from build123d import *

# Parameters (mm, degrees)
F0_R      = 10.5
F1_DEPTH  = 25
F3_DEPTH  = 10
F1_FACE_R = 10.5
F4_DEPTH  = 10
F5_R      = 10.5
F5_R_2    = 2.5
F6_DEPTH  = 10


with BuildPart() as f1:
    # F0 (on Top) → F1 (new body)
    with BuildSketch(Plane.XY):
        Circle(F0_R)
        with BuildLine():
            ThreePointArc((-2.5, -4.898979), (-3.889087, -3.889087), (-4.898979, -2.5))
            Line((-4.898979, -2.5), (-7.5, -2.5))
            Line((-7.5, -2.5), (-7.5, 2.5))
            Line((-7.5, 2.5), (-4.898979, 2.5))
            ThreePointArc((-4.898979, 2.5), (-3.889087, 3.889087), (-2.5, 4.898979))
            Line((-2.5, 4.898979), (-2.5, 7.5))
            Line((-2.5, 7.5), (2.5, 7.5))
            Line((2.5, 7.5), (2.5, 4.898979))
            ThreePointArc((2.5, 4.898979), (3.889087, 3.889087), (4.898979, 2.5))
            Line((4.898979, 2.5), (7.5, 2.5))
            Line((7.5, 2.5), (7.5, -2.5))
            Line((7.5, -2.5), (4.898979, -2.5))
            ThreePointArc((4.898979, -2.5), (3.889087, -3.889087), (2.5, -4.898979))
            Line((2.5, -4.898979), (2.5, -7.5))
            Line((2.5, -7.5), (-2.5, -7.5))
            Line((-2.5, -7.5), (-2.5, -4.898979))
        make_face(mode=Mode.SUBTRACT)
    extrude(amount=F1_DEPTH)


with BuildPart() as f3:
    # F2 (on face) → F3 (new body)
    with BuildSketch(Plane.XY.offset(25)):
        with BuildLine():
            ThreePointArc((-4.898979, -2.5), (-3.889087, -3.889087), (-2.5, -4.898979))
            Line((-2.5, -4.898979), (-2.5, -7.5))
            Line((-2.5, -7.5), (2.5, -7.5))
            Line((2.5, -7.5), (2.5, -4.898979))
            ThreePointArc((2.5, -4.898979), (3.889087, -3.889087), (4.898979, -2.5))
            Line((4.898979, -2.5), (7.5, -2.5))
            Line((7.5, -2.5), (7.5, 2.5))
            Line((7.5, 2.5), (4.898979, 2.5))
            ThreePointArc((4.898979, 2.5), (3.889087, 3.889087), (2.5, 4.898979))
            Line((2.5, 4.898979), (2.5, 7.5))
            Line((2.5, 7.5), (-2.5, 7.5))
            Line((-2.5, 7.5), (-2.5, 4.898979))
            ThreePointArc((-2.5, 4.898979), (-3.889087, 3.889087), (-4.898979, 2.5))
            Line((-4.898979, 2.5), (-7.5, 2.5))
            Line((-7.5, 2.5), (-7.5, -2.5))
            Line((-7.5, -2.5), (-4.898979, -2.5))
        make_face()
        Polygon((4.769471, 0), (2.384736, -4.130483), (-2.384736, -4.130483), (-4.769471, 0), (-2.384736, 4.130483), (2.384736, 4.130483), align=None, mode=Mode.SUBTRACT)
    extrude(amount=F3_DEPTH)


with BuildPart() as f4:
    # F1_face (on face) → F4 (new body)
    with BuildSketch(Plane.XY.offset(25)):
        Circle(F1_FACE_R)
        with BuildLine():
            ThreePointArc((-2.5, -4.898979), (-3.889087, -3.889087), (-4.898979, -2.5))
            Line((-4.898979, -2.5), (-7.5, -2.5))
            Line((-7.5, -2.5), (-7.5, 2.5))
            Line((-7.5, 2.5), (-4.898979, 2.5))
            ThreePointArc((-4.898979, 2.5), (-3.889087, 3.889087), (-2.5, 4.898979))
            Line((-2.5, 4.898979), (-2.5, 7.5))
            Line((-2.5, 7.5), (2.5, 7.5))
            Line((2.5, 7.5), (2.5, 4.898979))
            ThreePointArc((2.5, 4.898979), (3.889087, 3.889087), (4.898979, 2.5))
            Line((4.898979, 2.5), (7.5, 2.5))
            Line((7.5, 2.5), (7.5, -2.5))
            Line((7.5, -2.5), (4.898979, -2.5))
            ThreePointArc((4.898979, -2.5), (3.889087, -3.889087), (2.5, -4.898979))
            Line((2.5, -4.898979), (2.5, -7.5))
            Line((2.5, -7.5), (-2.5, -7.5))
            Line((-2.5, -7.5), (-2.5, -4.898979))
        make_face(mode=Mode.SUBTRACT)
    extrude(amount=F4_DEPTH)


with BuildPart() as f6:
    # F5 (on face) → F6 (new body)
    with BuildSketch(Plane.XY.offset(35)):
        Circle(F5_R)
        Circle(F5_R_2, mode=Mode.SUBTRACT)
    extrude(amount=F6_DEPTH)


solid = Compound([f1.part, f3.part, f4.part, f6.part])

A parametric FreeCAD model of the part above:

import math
import FreeCAD as App
import Part
import Sketcher
from FreeCAD import Vector
Q = App.Units.Quantity

doc = App.newDocument("Part")
body = doc.addObject("PartDesign::Body", "Body")

# Sketch on XY plane
sketch1 = doc.addObject("Sketcher::SketchObject", "Sketch")
body.addObject(sketch1)
sketch1.AttachmentSupport = (doc.XY_Plane, [""])
sketch1.MapMode = "FlatFace"
sketch1.addGeometry([
    Part.Circle(Vector(0, 0, 0), Vector(0, 0, 1), 10.5),  # 0
    Part.LineSegment(Vector(-2.5, -7.5, 0), Vector(-2.5, -4.9, 0)),  # 1
    Part.ArcOfCircle(Part.Circle(Vector(0, 0, 0), Vector(0, 0, 1), 5.5), math.radians(-153), math.radians(-117)),  # 2
    Part.LineSegment(Vector(-4.9, -2.5, 0), Vector(-7.5, -2.5, 0)),  # 3
    Part.LineSegment(Vector(-7.5, -2.5, 0), Vector(-7.5, 2.5, 0)),  # 4
    Part.LineSegment(Vector(-7.5, 2.5, 0), Vector(-4.9, 2.5, 0)),  # 5
    Part.ArcOfCircle(Part.Circle(Vector(0, 0, 0), Vector(0, 0, 1), 5.5), math.radians(117), math.radians(153)),  # 6
    Part.LineSegment(Vector(-2.5, 4.9, 0), Vector(-2.5, 7.5, 0)),  # 7
    Part.LineSegment(Vector(-2.5, 7.5, 0), Vector(2.5, 7.5, 0)),  # 8
    Part.LineSegment(Vector(2.5, 7.5, 0), Vector(2.5, 4.9, 0)),  # 9
    Part.ArcOfCircle(Part.Circle(Vector(0, 0, 0), Vector(0, 0, 1), 5.5), math.radians(27), math.radians(63)),  # 10
    Part.LineSegment(Vector(4.9, 2.5, 0), Vector(7.5, 2.5, 0)),  # 11
    Part.LineSegment(Vector(7.5, 2.5, 0), Vector(7.5, -2.5, 0)),  # 12
    Part.LineSegment(Vector(7.5, -2.5, 0), Vector(4.9, -2.5, 0)),  # 13
    Part.ArcOfCircle(Part.Circle(Vector(0, 0, 0), Vector(0, 0, 1), 5.5), math.radians(-63), math.radians(-27)),  # 14
    Part.LineSegment(Vector(2.5, -4.9, 0), Vector(2.5, -7.5, 0)),  # 15
    Part.LineSegment(Vector(2.5, -7.5, 0), Vector(-2.5, -7.5, 0)),  # 16
], False)
sketch1.addConstraint([
    Sketcher.Constraint("Coincident", 1, 2, 2, 2),
    Sketcher.Constraint("Coincident", 2, 1, 3, 1),
    Sketcher.Constraint("Coincident", 3, 2, 4, 1),
    Sketcher.Constraint("Coincident", 4, 2, 5, 1),
    Sketcher.Constraint("Coincident", 5, 2, 6, 2),
    Sketcher.Constraint("Coincident", 6, 1, 7, 1),
    Sketcher.Constraint("Coincident", 7, 2, 8, 1),
    Sketcher.Constraint("Coincident", 8, 2, 9, 1),
    Sketcher.Constraint("Coincident", 9, 2, 10, 2),
    Sketcher.Constraint("Coincident", 10, 1, 11, 1),
    Sketcher.Constraint("Coincident", 11, 2, 12, 1),
    Sketcher.Constraint("Coincident", 12, 2, 13, 1),
    Sketcher.Constraint("Coincident", 13, 2, 14, 2),
    Sketcher.Constraint("Coincident", 14, 1, 15, 1),
    Sketcher.Constraint("Coincident", 15, 2, 16, 1),
    Sketcher.Constraint("Coincident", 16, 2, 1, 1),
    Sketcher.Constraint("Vertical", 1),
    Sketcher.Constraint("Horizontal", 3),
    Sketcher.Constraint("Vertical", 4),
    Sketcher.Constraint("Horizontal", 5),
    Sketcher.Constraint("Vertical", 7),
    Sketcher.Constraint("Horizontal", 8),
    Sketcher.Constraint("Vertical", 9),
    Sketcher.Constraint("Horizontal", 11),
    Sketcher.Constraint("Vertical", 12),
    Sketcher.Constraint("Horizontal", 13),
    Sketcher.Constraint("Vertical", 15),
    Sketcher.Constraint("Horizontal", 16),
    Sketcher.Constraint("Coincident", 0, 3, -1, 1),
    Sketcher.Constraint("Coincident", 2, 3, -1, 1),
    Sketcher.Constraint("Coincident", 6, 3, -1, 1),
    Sketcher.Constraint("Coincident", 10, 3, -1, 1),
    Sketcher.Constraint("Coincident", 14, 3, -1, 1),
    Sketcher.Constraint("Equal", 2, 6),
    Sketcher.Constraint("Equal", 6, 10),
    Sketcher.Constraint("Equal", 10, 14),
    Sketcher.Constraint("Symmetric", 3, 2, 11, 2, -1, 1),
    Sketcher.Constraint("Symmetric", 7, 2, 15, 2, -1, 1),
    Sketcher.Constraint("Horizontal", 6, 1, 9, 2),
    Sketcher.Constraint("Horizontal", 5, 2, 10, 1),
    Sketcher.Constraint("Horizontal", 3, 2, 12, 2),
    Sketcher.Constraint("Horizontal", 1, 2, 14, 1),
    Sketcher.Constraint("Equal", 13, 1),
    Sketcher.Constraint("Equal", 16, 4),
    Sketcher.Constraint("Diameter", 0, Q("21 mm")),
    Sketcher.Constraint("Radius", 2, Q("5.499999 mm")),
    Sketcher.Constraint("DistanceX", 8, 1, 8, 2, Q("5 mm")),
    Sketcher.Constraint("DistanceX", 3, 2, 1, 2, Q("5 mm")),
])
pad1 = doc.addObject("PartDesign::Pad", "Pad")
body.addObject(pad1)
pad1.Profile = sketch1
pad1.Length = 25
body2 = doc.addObject("PartDesign::Body", "Body001")

# Sketch on XY plane
sketch2 = doc.addObject("Sketcher::SketchObject", "Sketch001")
body2.addObject(sketch2)
sketch2.AttachmentSupport = (doc.getObject("XY_Plane001"), [""])
sketch2.MapMode = "FlatFace"
sketch2.AttachmentOffset = App.Placement(Vector(0, 0, 25), App.Rotation())
sketch2.addGeometry([
    Part.ArcOfCircle(Part.Circle(Vector(0, 0, 0), Vector(0, 0, 1), 5.5), math.radians(-153), math.radians(-117)),  # 0
    Part.LineSegment(Vector(-2.5, -4.9, 0), Vector(-2.5, -7.5, 0)),  # 1
    Part.LineSegment(Vector(-2.5, -7.5, 0), Vector(2.5, -7.5, 0)),  # 2
    Part.LineSegment(Vector(2.5, -7.5, 0), Vector(2.5, -4.9, 0)),  # 3
    Part.ArcOfCircle(Part.Circle(Vector(0, 0, 0), Vector(0, 0, 1), 5.5), math.radians(-63), math.radians(-27)),  # 4
    Part.LineSegment(Vector(4.9, -2.5, 0), Vector(7.5, -2.5, 0)),  # 5
    Part.LineSegment(Vector(7.5, -2.5, 0), Vector(7.5, 2.5, 0)),  # 6
    Part.LineSegment(Vector(7.5, 2.5, 0), Vector(4.9, 2.5, 0)),  # 7
    Part.ArcOfCircle(Part.Circle(Vector(0, 0, 0), Vector(0, 0, 1), 5.5), math.radians(27), math.radians(63)),  # 8
    Part.LineSegment(Vector(2.5, 4.9, 0), Vector(2.5, 7.5, 0)),  # 9
    Part.LineSegment(Vector(2.5, 7.5, 0), Vector(-2.5, 7.5, 0)),  # 10
    Part.LineSegment(Vector(-2.5, 7.5, 0), Vector(-2.5, 4.9, 0)),  # 11
    Part.ArcOfCircle(Part.Circle(Vector(0, 0, 0), Vector(0, 0, 1), 5.5), math.radians(117), math.radians(153)),  # 12
    Part.LineSegment(Vector(-4.9, 2.5, 0), Vector(-7.5, 2.5, 0)),  # 13
    Part.LineSegment(Vector(-7.5, 2.5, 0), Vector(-7.5, -2.5, 0)),  # 14
    Part.LineSegment(Vector(-7.5, -2.5, 0), Vector(-4.9, -2.5, 0)),  # 15
    Part.LineSegment(Vector(2.4, 4.1, 0), Vector(4.8, 0, 0)),  # 16
    Part.LineSegment(Vector(4.8, 0, 0), Vector(2.4, -4.1, 0)),  # 17
    Part.LineSegment(Vector(2.4, -4.1, 0), Vector(-2.4, -4.1, 0)),  # 18
    Part.LineSegment(Vector(-2.4, -4.1, 0), Vector(-4.8, 0, 0)),  # 19
    Part.LineSegment(Vector(-4.8, 0, 0), Vector(-2.4, 4.1, 0)),  # 20
    Part.LineSegment(Vector(-2.4, 4.1, 0), Vector(2.4, 4.1, 0)),  # 21
], False)
sketch2.addConstraint([
    Sketcher.Constraint("Coincident", 0, 2, 1, 1),
    Sketcher.Constraint("Coincident", 1, 2, 2, 1),
    Sketcher.Constraint("Coincident", 2, 2, 3, 1),
    Sketcher.Constraint("Coincident", 3, 2, 4, 1),
    Sketcher.Constraint("Coincident", 4, 2, 5, 1),
    Sketcher.Constraint("Coincident", 5, 2, 6, 1),
    Sketcher.Constraint("Coincident", 6, 2, 7, 1),
    Sketcher.Constraint("Coincident", 7, 2, 8, 1),
    Sketcher.Constraint("Coincident", 8, 2, 9, 1),
    Sketcher.Constraint("Coincident", 9, 2, 10, 1),
    Sketcher.Constraint("Coincident", 10, 2, 11, 1),
    Sketcher.Constraint("Coincident", 11, 2, 12, 1),
    Sketcher.Constraint("Coincident", 12, 2, 13, 1),
    Sketcher.Constraint("Coincident", 13, 2, 14, 1),
    Sketcher.Constraint("Coincident", 14, 2, 15, 1),
    Sketcher.Constraint("Coincident", 15, 2, 0, 1),
    Sketcher.Constraint("Coincident", 16, 2, 17, 1),
    Sketcher.Constraint("Coincident", 17, 2, 18, 1),
    Sketcher.Constraint("Coincident", 18, 2, 19, 1),
    Sketcher.Constraint("Coincident", 19, 2, 20, 1),
    Sketcher.Constraint("Coincident", 20, 2, 21, 1),
    Sketcher.Constraint("Coincident", 21, 2, 16, 1),
    Sketcher.Constraint("Vertical", 1),
    Sketcher.Constraint("Horizontal", 2),
    Sketcher.Constraint("Vertical", 3),
    Sketcher.Constraint("Horizontal", 5),
    Sketcher.Constraint("Vertical", 6),
    Sketcher.Constraint("Horizontal", 7),
    Sketcher.Constraint("Vertical", 9),
    Sketcher.Constraint("Horizontal", 10),
    Sketcher.Constraint("Vertical", 11),
    Sketcher.Constraint("Horizontal", 13),
    Sketcher.Constraint("Vertical", 14),
    Sketcher.Constraint("Horizontal", 15),
    Sketcher.Constraint("Horizontal", 18),
    Sketcher.Constraint("Horizontal", 21),
    Sketcher.Constraint("Coincident", 0, 3, -1, 1),
    Sketcher.Constraint("Coincident", 4, 3, -1, 1),
    Sketcher.Constraint("Coincident", 8, 3, -1, 1),
    Sketcher.Constraint("Coincident", 12, 3, -1, 1),
    Sketcher.Constraint("Equal", 0, 4),
    Sketcher.Constraint("Equal", 4, 8),
    Sketcher.Constraint("Equal", 8, 12),
    Sketcher.Constraint("Symmetric", 1, 2, 9, 2, -1, 1),
    Sketcher.Constraint("Symmetric", 5, 2, 13, 2, -1, 1),
    Sketcher.Constraint("Symmetric", 16, 2, 19, 2, -1, 1),
    Sketcher.Constraint("Symmetric", 17, 2, 20, 2, -1, 1),
    Sketcher.Constraint("PointOnObject", 16, 2, -1),
    Sketcher.Constraint("Parallel", 16, 19),
    Sketcher.Constraint("Horizontal", 0, 2, 3, 2),
    Sketcher.Constraint("Horizontal", 8, 2, 11, 2),
    Sketcher.Constraint("Horizontal", 7, 2, 12, 2),
    Sketcher.Constraint("Horizontal", 5, 2, 14, 2),
    Sketcher.Constraint("Vertical", 18, 2, 20, 2),
    Sketcher.Constraint("Equal", 15, 1),
    Sketcher.Constraint("Equal", 10, 6),
    Sketcher.Constraint("Radius", 0, Q("5.499999 mm")),
    Sketcher.Constraint("DistanceX", 2, 1, 2, 2, Q("5 mm")),
    Sketcher.Constraint("Angle", 16, Q("-60.000005 deg")),
    Sketcher.Constraint("DistanceX", 3, 2, 5, 2, Q("5 mm")),
    Sketcher.Constraint("Distance", 16, Q("4.769471 mm")),
    Sketcher.Constraint("DistanceX", 18, 2, 18, 1, Q("4.769472 mm")),
])
pad2 = doc.addObject("PartDesign::Pad", "Pad001")
body2.addObject(pad2)
pad2.Profile = sketch2
pad2.Length = 10
body3 = doc.addObject("PartDesign::Body", "Body002")

# Sketch on XY plane
sketch3 = doc.addObject("Sketcher::SketchObject", "Sketch002")
body3.addObject(sketch3)
sketch3.AttachmentSupport = (doc.getObject("XY_Plane002"), [""])
sketch3.MapMode = "FlatFace"
sketch3.AttachmentOffset = App.Placement(Vector(0, 0, 25), App.Rotation())
sketch3.addGeometry([
    Part.Circle(Vector(0, 0, 0), Vector(0, 0, 1), 10.5),  # 0
    Part.LineSegment(Vector(-2.5, -7.5, 0), Vector(-2.5, -4.9, 0)),  # 1
    Part.ArcOfCircle(Part.Circle(Vector(0, 0, 0), Vector(0, 0, 1), 5.5), math.radians(-153), math.radians(-117)),  # 2
    Part.LineSegment(Vector(-4.9, -2.5, 0), Vector(-7.5, -2.5, 0)),  # 3
    Part.LineSegment(Vector(-7.5, -2.5, 0), Vector(-7.5, 2.5, 0)),  # 4
    Part.LineSegment(Vector(-7.5, 2.5, 0), Vector(-4.9, 2.5, 0)),  # 5
    Part.ArcOfCircle(Part.Circle(Vector(0, 0, 0), Vector(0, 0, 1), 5.5), math.radians(117), math.radians(153)),  # 6
    Part.LineSegment(Vector(-2.5, 4.9, 0), Vector(-2.5, 7.5, 0)),  # 7
    Part.LineSegment(Vector(-2.5, 7.5, 0), Vector(2.5, 7.5, 0)),  # 8
    Part.LineSegment(Vector(2.5, 7.5, 0), Vector(2.5, 4.9, 0)),  # 9
    Part.ArcOfCircle(Part.Circle(Vector(0, 0, 0), Vector(0, 0, 1), 5.5), math.radians(27), math.radians(63)),  # 10
    Part.LineSegment(Vector(4.9, 2.5, 0), Vector(7.5, 2.5, 0)),  # 11
    Part.LineSegment(Vector(7.5, 2.5, 0), Vector(7.5, -2.5, 0)),  # 12
    Part.LineSegment(Vector(7.5, -2.5, 0), Vector(4.9, -2.5, 0)),  # 13
    Part.ArcOfCircle(Part.Circle(Vector(0, 0, 0), Vector(0, 0, 1), 5.5), math.radians(-63), math.radians(-27)),  # 14
    Part.LineSegment(Vector(2.5, -4.9, 0), Vector(2.5, -7.5, 0)),  # 15
    Part.LineSegment(Vector(2.5, -7.5, 0), Vector(-2.5, -7.5, 0)),  # 16
], False)
sketch3.addConstraint([
    Sketcher.Constraint("Coincident", 1, 2, 2, 2),
    Sketcher.Constraint("Coincident", 2, 1, 3, 1),
    Sketcher.Constraint("Coincident", 3, 2, 4, 1),
    Sketcher.Constraint("Coincident", 4, 2, 5, 1),
    Sketcher.Constraint("Coincident", 5, 2, 6, 2),
    Sketcher.Constraint("Coincident", 6, 1, 7, 1),
    Sketcher.Constraint("Coincident", 7, 2, 8, 1),
    Sketcher.Constraint("Coincident", 8, 2, 9, 1),
    Sketcher.Constraint("Coincident", 9, 2, 10, 2),
    Sketcher.Constraint("Coincident", 10, 1, 11, 1),
    Sketcher.Constraint("Coincident", 11, 2, 12, 1),
    Sketcher.Constraint("Coincident", 12, 2, 13, 1),
    Sketcher.Constraint("Coincident", 13, 2, 14, 2),
    Sketcher.Constraint("Coincident", 14, 1, 15, 1),
    Sketcher.Constraint("Coincident", 15, 2, 16, 1),
    Sketcher.Constraint("Coincident", 16, 2, 1, 1),
    Sketcher.Constraint("Vertical", 1),
    Sketcher.Constraint("Horizontal", 3),
    Sketcher.Constraint("Vertical", 4),
    Sketcher.Constraint("Horizontal", 5),
    Sketcher.Constraint("Vertical", 7),
    Sketcher.Constraint("Horizontal", 8),
    Sketcher.Constraint("Vertical", 9),
    Sketcher.Constraint("Horizontal", 11),
    Sketcher.Constraint("Vertical", 12),
    Sketcher.Constraint("Horizontal", 13),
    Sketcher.Constraint("Vertical", 15),
    Sketcher.Constraint("Horizontal", 16),
    Sketcher.Constraint("Coincident", 0, 3, -1, 1),
    Sketcher.Constraint("Coincident", 2, 3, -1, 1),
    Sketcher.Constraint("Coincident", 6, 3, -1, 1),
    Sketcher.Constraint("Coincident", 10, 3, -1, 1),
    Sketcher.Constraint("Coincident", 14, 3, -1, 1),
    Sketcher.Constraint("Equal", 2, 6),
    Sketcher.Constraint("Equal", 6, 10),
    Sketcher.Constraint("Equal", 10, 14),
    Sketcher.Constraint("Symmetric", 3, 2, 11, 2, -1, 1),
    Sketcher.Constraint("Symmetric", 7, 2, 15, 2, -1, 1),
    Sketcher.Constraint("Horizontal", 6, 1, 9, 2),
    Sketcher.Constraint("Horizontal", 5, 2, 10, 1),
    Sketcher.Constraint("Horizontal", 3, 2, 12, 2),
    Sketcher.Constraint("Horizontal", 1, 2, 14, 1),
    Sketcher.Constraint("Equal", 13, 1),
    Sketcher.Constraint("Equal", 16, 4),
    Sketcher.Constraint("Diameter", 0, Q("21 mm")),
    Sketcher.Constraint("Radius", 2, Q("5.499999 mm")),
    Sketcher.Constraint("DistanceX", 8, 1, 8, 2, Q("5 mm")),
    Sketcher.Constraint("DistanceX", 3, 2, 1, 2, Q("5 mm")),
])
pad3 = doc.addObject("PartDesign::Pad", "Pad002")
body3.addObject(pad3)
pad3.Profile = sketch3
pad3.Length = 10
body4 = doc.addObject("PartDesign::Body", "Body003")

# Sketch on XY plane
sketch4 = doc.addObject("Sketcher::SketchObject", "Sketch003")
body4.addObject(sketch4)
sketch4.AttachmentSupport = (doc.getObject("XY_Plane003"), [""])
sketch4.MapMode = "FlatFace"
sketch4.AttachmentOffset = App.Placement(Vector(0, 0, 35), App.Rotation())
sketch4.addGeometry([
    Part.Circle(Vector(0, 0, 0), Vector(0, 0, 1), 10.5),
    Part.Circle(Vector(0, 0, 0), Vector(0, 0, 1), 2.5),
], False)
sketch4.addConstraint([
    Sketcher.Constraint("Coincident", 0, 3, -1, 1),
    Sketcher.Constraint("Coincident", 1, 3, -1, 1),
    Sketcher.Constraint("Diameter", 0, Q("21 mm")),
    Sketcher.Constraint("Diameter", 1, Q("5 mm")),
])
pad4 = doc.addObject("PartDesign::Pad", "Pad003")
body4.addObject(pad4)
pad4.Profile = sketch4
pad4.Length = 10

doc.recompute()
